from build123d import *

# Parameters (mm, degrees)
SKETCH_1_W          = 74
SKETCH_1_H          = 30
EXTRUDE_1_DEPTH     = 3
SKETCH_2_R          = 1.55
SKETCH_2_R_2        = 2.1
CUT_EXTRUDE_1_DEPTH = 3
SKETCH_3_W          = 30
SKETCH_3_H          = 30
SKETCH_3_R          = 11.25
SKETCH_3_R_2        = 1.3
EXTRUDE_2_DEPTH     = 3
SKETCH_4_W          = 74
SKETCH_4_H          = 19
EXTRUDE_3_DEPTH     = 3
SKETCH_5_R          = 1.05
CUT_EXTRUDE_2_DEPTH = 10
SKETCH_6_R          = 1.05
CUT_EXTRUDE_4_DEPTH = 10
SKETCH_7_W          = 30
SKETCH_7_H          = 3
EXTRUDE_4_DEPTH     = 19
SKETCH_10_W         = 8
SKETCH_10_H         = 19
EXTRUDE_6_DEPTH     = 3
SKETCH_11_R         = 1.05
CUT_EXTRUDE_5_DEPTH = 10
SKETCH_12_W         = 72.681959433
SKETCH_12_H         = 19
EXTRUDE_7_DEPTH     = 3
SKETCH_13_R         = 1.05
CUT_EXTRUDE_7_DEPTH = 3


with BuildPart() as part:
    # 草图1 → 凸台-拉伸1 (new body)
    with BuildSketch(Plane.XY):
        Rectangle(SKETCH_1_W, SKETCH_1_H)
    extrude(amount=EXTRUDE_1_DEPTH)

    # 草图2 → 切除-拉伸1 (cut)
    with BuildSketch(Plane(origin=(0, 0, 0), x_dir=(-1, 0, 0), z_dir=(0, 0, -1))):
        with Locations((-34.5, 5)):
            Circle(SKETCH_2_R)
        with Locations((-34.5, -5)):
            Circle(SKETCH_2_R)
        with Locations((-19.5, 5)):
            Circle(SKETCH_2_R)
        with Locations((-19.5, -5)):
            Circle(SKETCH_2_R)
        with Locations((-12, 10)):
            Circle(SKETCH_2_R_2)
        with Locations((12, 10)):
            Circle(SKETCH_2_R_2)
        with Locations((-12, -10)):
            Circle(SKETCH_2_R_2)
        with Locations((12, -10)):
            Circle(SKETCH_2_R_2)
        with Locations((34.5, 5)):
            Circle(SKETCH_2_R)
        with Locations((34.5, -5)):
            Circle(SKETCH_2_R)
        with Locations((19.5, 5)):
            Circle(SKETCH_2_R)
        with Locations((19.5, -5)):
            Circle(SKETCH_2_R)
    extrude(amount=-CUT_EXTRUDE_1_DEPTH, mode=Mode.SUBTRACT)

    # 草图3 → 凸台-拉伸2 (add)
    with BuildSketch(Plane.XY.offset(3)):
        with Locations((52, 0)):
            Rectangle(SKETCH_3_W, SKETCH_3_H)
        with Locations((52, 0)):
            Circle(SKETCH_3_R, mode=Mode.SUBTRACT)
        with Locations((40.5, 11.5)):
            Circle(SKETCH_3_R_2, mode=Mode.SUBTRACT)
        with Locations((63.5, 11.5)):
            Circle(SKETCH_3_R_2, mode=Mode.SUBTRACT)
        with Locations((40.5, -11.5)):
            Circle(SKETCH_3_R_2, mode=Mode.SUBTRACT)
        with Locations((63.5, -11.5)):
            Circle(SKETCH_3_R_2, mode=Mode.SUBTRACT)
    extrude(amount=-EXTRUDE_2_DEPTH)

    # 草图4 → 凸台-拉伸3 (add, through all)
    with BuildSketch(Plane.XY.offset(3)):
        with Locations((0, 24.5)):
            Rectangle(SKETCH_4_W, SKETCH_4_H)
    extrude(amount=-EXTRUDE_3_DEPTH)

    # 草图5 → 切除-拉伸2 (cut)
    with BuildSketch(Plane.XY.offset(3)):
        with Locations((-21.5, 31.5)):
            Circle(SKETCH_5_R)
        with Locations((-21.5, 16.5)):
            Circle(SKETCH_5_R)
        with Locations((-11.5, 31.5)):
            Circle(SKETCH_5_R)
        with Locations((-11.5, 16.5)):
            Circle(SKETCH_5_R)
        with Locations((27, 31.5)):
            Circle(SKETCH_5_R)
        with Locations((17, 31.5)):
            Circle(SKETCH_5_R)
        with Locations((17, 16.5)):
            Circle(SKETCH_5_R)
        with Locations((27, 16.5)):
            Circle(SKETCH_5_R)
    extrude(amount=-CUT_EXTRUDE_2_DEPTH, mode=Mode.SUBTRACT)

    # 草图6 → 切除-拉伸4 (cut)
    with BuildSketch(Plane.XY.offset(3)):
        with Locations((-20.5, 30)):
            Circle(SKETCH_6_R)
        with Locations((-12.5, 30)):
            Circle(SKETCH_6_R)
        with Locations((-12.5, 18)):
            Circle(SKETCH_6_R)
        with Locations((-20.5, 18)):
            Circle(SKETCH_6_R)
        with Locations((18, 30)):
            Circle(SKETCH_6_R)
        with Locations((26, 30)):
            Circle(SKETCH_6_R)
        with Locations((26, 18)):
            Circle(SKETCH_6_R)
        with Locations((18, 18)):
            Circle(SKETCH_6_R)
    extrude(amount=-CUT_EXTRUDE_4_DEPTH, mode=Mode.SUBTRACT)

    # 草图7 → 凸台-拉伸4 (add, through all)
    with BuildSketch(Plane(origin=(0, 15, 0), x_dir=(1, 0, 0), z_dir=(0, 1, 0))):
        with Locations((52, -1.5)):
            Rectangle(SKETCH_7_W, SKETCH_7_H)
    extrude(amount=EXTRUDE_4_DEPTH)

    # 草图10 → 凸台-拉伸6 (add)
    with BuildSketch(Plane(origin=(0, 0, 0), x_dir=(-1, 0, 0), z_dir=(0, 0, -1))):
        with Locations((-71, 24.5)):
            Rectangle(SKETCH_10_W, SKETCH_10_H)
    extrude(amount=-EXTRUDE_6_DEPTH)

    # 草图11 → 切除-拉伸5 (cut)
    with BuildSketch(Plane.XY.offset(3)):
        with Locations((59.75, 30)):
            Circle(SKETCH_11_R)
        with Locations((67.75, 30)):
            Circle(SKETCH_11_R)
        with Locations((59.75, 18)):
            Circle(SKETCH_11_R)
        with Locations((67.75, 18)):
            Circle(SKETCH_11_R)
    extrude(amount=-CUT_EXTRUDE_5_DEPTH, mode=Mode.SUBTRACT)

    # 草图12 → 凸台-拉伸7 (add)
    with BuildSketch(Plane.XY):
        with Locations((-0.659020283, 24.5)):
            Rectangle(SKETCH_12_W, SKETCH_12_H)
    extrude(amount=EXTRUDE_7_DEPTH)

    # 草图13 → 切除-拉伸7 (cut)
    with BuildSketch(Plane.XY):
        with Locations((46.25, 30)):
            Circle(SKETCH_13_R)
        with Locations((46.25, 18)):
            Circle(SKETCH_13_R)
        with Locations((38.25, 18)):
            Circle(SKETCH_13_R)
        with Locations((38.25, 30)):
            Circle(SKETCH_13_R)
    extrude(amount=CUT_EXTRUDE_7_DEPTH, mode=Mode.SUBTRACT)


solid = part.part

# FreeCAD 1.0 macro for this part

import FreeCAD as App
import Part
import Sketcher


def add_polygon(sketch, points):
    """Adds a closed chain of lines whose ends are joined by coincident constraints."""
    first, n = sketch.GeometryCount, len(points)
    for a, b in zip(points, points[1:] + points[:1]):
        sketch.addGeometry(Part.LineSegment(App.Vector(*a, 0), App.Vector(*b, 0)), False)
    for i in range(n):
        sketch.addConstraint(Sketcher.Constraint("Coincident", first + i, 2, first + (i + 1) % n, 1))

doc = App.newDocument("Part")
body = doc.addObject("PartDesign::Body", "Body")

# Sketch on XY plane
sketch1 = doc.addObject("Sketcher::SketchObject", "Sketch")
body.addObject(sketch1)
sketch1.AttachmentSupport = (doc.XY_Plane, [""])
sketch1.MapMode = "FlatFace"
add_polygon(sketch1, [(-37, 15), (-37, -15), (37, -15), (37, 15)])  # lines 0-3
sketch1.addConstraint(Sketcher.Constraint("Vertical", 0))
sketch1.addConstraint(Sketcher.Constraint("Horizontal", 1))
sketch1.addConstraint(Sketcher.Constraint("Vertical", 2))
sketch1.addConstraint(Sketcher.Constraint("Horizontal", 3))
sketch1.addConstraint(Sketcher.Constraint("Symmetric", 0, 2, 2, 2, -1, 1))
sketch1.addConstraint(Sketcher.Constraint("DistanceX", 1, 1, 1, 2, 74.0))
sketch1.addConstraint(Sketcher.Constraint("DistanceY", 0, 2, 0, 1, 30.0))
pad1 = doc.addObject("PartDesign::Pad", "Pad")
body.addObject(pad1)
pad1.Profile = sketch1
pad1.Length = 3

# Sketch on XY plane
sketch2 = doc.addObject("Sketcher::SketchObject", "Sketch001")
body.addObject(sketch2)
sketch2.AttachmentSupport = (doc.XY_Plane, [""])
sketch2.MapMode = "FlatFace"
sketch2.addGeometry(Part.Circle(App.Vector(34.5, 5, 0), App.Vector(0, 0, 1), 1.6), False)
sketch2.addGeometry(Part.Circle(App.Vector(34.5, -5, 0), App.Vector(0, 0, 1), 1.6), False)
sketch2.addGeometry(Part.Circle(App.Vector(19.5, 5, 0), App.Vector(0, 0, 1), 1.6), False)
sketch2.addGeometry(Part.Circle(App.Vector(19.5, -5, 0), App.Vector(0, 0, 1), 1.6), False)
sketch2.addGeometry(Part.Circle(App.Vector(12, 10, 0), App.Vector(0, 0, 1), 2.1), False)
sketch2.addGeometry(Part.Circle(App.Vector(-12, 10, 0), App.Vector(0, 0, 1), 2.1), False)
sketch2.addGeometry(Part.Circle(App.Vector(12, -10, 0), App.Vector(0, 0, 1), 2.1), False)
sketch2.addGeometry(Part.Circle(App.Vector(-12, -10, 0), App.Vector(0, 0, 1), 2.1), False)
sketch2.addGeometry(Part.Circle(App.Vector(-34.5, 5, 0), App.Vector(0, 0, 1), 1.6), False)
sketch2.addGeometry(Part.Circle(App.Vector(-34.5, -5, 0), App.Vector(0, 0, 1), 1.6), False)
sketch2.addGeometry(Part.Circle(App.Vector(-19.5, 5, 0), App.Vector(0, 0, 1), 1.6), False)
sketch2.addGeometry(Part.Circle(App.Vector(-19.5, -5, 0), App.Vector(0, 0, 1), 1.6), False)
sketch2.addConstraint(Sketcher.Constraint("Equal", 0, 1))
sketch2.addConstraint(Sketcher.Constraint("Equal", 1, 2))
sketch2.addConstraint(Sketcher.Constraint("Equal", 2, 3))
sketch2.addConstraint(Sketcher.Constraint("Equal", 4, 5))
sketch2.addConstraint(Sketcher.Constraint("Equal", 5, 6))
sketch2.addConstraint(Sketcher.Constraint("Equal", 6, 7))
sketch2.addConstraint(Sketcher.Constraint("Equal", 3, 8))
sketch2.addConstraint(Sketcher.Constraint("Equal", 8, 9))
sketch2.addConstraint(Sketcher.Constraint("Equal", 9, 10))
sketch2.addConstraint(Sketcher.Constraint("Equal", 10, 11))
sketch2.addConstraint(Sketcher.Constraint("Symmetric", 5, 3, 6, 3, -1, 1))
sketch2.addConstraint(Sketcher.Constraint("Symmetric", 4, 3, 7, 3, -1, 1))
sketch2.addConstraint(Sketcher.Constraint("Symmetric", 1, 3, 8, 3, -1, 1))
sketch2.addConstraint(Sketcher.Constraint("Symmetric", 0, 3, 9, 3, -1, 1))
sketch2.addConstraint(Sketcher.Constraint("Symmetric", 3, 3, 10, 3, -1, 1))
sketch2.addConstraint(Sketcher.Constraint("Symmetric", 2, 3, 11, 3, -1, 1))
sketch2.addConstraint(Sketcher.Constraint("Symmetric", 4, 3, 5, 3, -2))
sketch2.addConstraint(Sketcher.Constraint("Symmetric", 0, 3, 8, 3, -2))
sketch2.addConstraint(Sketcher.Constraint("Symmetric", 2, 3, 10, 3, -2))
sketch2.addConstraint(Sketcher.Constraint("Horizontal", 0, 3, 2, 3))
sketch2.addConstraint(Sketcher.Constraint("Diameter", 0, 3.1))
sketch2.addConstraint(Sketcher.Constraint("Diameter", 4, 4.2))
sketch2.addConstraint(Sketcher.Constraint("DistanceY", -1, 1, 0, 3, 5.0))
sketch2.addConstraint(Sketcher.Constraint("DistanceX", -1, 1, 4, 3, 12.0))
sketch2.addConstraint(Sketcher.Constraint("DistanceY", -1, 1, 4, 3, 10.0))
sketch2.addConstraint(Sketcher.Constraint("DistanceX", 2, 3, 0, 3, 15.0))
sketch2.addConstraint(Sketcher.Constraint("DistanceX", 8, 3, 2, 3, 54.0))
pocket1 = doc.addObject("PartDesign::Pocket", "Pocket")
body.addObject(pocket1)
pocket1.Profile = sketch2
pocket1.Length = 3
pocket1.Reversed = True

# Sketch on XY plane
sketch3 = doc.addObject("Sketcher::SketchObject", "Sketch002")
body.addObject(sketch3)
sketch3.AttachmentSupport = (doc.XY_Plane, [""])
sketch3.MapMode = "FlatFace"
sketch3.AttachmentOffset = App.Placement(App.Vector(0, 0, 3), App.Rotation())
add_polygon(sketch3, [(37, 15), (37, -15), (67, -15), (67, 15)])  # lines 0-3
sketch3.addGeometry(Part.Circle(App.Vector(40.5, -11.5, 0), App.Vector(0, 0, 1), 1.3), False)  # 4
sketch3.addGeometry(Part.Circle(App.Vector(63.5, -11.5, 0), App.Vector(0, 0, 1), 1.3), False)  # 5
sketch3.addGeometry(Part.Circle(App.Vector(40.5, 11.5, 0), App.Vector(0, 0, 1), 1.3), False)  # 6
sketch3.addGeometry(Part.Circle(App.Vector(52, 0, 0), App.Vector(0, 0, 1), 11.2), False)  # 7
sketch3.addGeometry(Part.Circle(App.Vector(63.5, 11.5, 0), App.Vector(0, 0, 1), 1.3), False)  # 8
sketch3.addConstraint(Sketcher.Constraint("Vertical", 0))
sketch3.addConstraint(Sketcher.Constraint("Horizontal", 1))
sketch3.addConstraint(Sketcher.Constraint("Vertical", 2))
sketch3.addConstraint(Sketcher.Constraint("Horizontal", 3))
sketch3.addConstraint(Sketcher.Constraint("Equal", 4, 5))
sketch3.addConstraint(Sketcher.Constraint("Equal", 5, 6))
sketch3.addConstraint(Sketcher.Constraint("Equal", 6, 8))
sketch3.addConstraint(Sketcher.Constraint("Symmetric", 4, 3, 6, 3, -1))
sketch3.addConstraint(Sketcher.Constraint("Symmetric", 5, 3, 8, 3, -1))
sketch3.addConstraint(Sketcher.Constraint("PointOnObject", 7, 3, -1))
sketch3.addConstraint(Sketcher.Constraint("Horizontal", 4, 3, 5, 3))
sketch3.addConstraint(Sketcher.Constraint("Equal", 3, 0))
sketch3.addConstraint(Sketcher.Constraint("Diameter", 4, 2.6))
sketch3.addConstraint(Sketcher.Constraint("Diameter", 7, 22.5))
sketch3.addConstraint(Sketcher.Constraint("DistanceX", 1, 1, 1, 2, 30.0))
sketch3.addConstraint(Sketcher.Constraint("DistanceX", -1, 1, 7, 3, 52.0))
sketch3.addConstraint(Sketcher.Constraint("DistanceX", -1, 1, 0, 2, 37.0))
sketch3.addConstraint(Sketcher.Constraint("DistanceY", 0, 2, -1, 1, 15.0))
sketch3.addConstraint(Sketcher.Constraint("DistanceX", 4, 3, 5, 3, 23.0))
sketch3.addConstraint(Sketcher.Constraint("DistanceY", 4, 3, 6, 3, 23.0))
sketch3.addConstraint(Sketcher.Constraint("DistanceX", -1, 1, 4, 3, 40.5))
pad2 = doc.addObject("PartDesign::Pad", "Pad001")
body.addObject(pad2)
pad2.Profile = sketch3
pad2.Length = 3
pad2.Reversed = True

# Sketch on XY plane
sketch4 = doc.addObject("Sketcher::SketchObject", "Sketch003")
body.addObject(sketch4)
sketch4.AttachmentSupport = (doc.XY_Plane, [""])
sketch4.MapMode = "FlatFace"
sketch4.AttachmentOffset = App.Placement(App.Vector(0, 0, 3), App.Rotation())
add_polygon(sketch4, [(-37, 34), (-37, 15), (37, 15), (37, 34)])  # lines 0-3
sketch4.addConstraint(Sketcher.Constraint("Vertical", 0))
sketch4.addConstraint(Sketcher.Constraint("Horizontal", 1))
sketch4.addConstraint(Sketcher.Constraint("Vertical", 2))
sketch4.addConstraint(Sketcher.Constraint("Horizontal", 3))
sketch4.addConstraint(Sketcher.Constraint("DistanceX", 1, 1, 1, 2, 74.0))
sketch4.addConstraint(Sketcher.Constraint("DistanceY", 0, 2, 0, 1, 19.0))
sketch4.addConstraint(Sketcher.Constraint("DistanceX", 0, 2, -1, 1, 37.0))
sketch4.addConstraint(Sketcher.Constraint("DistanceY", -1, 1, 0, 2, 15.0))
pad3 = doc.addObject("PartDesign::Pad", "Pad002")
body.addObject(pad3)
pad3.Profile = sketch4
pad3.Length = 3
pad3.Reversed = True

# Sketch on XY plane
sketch5 = doc.addObject("Sketcher::SketchObject", "Sketch004")
body.addObject(sketch5)
sketch5.AttachmentSupport = (doc.XY_Plane, [""])
sketch5.MapMode = "FlatFace"
sketch5.AttachmentOffset = App.Placement(App.Vector(0, 0, 3), App.Rotation())
sketch5.addGeometry(Part.Circle(App.Vector(-21.5, 31.5, 0), App.Vector(0, 0, 1), 1.1), False)
sketch5.addGeometry(Part.Circle(App.Vector(-21.5, 16.5, 0), App.Vector(0, 0, 1), 1.1), False)
sketch5.addGeometry(Part.Circle(App.Vector(-11.5, 31.5, 0), App.Vector(0, 0, 1), 1.1), False)
sketch5.addGeometry(Part.Circle(App.Vector(-11.5, 16.5, 0), App.Vector(0, 0, 1), 1.1), False)
sketch5.addGeometry(Part.Circle(App.Vector(27, 31.5, 0), App.Vector(0, 0, 1), 1.1), False)
sketch5.addGeometry(Part.Circle(App.Vector(17, 31.5, 0), App.Vector(0, 0, 1), 1.1), False)
sketch5.addGeometry(Part.Circle(App.Vector(17, 16.5, 0), App.Vector(0, 0, 1), 1.1), False)
sketch5.addGeometry(Part.Circle(App.Vector(27, 16.5, 0), App.Vector(0, 0, 1), 1.1), False)
sketch5.addConstraint(Sketcher.Constraint("Equal", 0, 1))
sketch5.addConstraint(Sketcher.Constraint("Equal", 1, 2))
sketch5.addConstraint(Sketcher.Constraint("Equal", 2, 3))
sketch5.addConstraint(Sketcher.Constraint("Equal", 3, 4))
sketch5.addConstraint(Sketcher.Constraint("Equal", 4, 5))
sketch5.addConstraint(Sketcher.Constraint("Equal", 5, 6))
sketch5.addConstraint(Sketcher.Constraint("Equal", 6, 7))
sketch5.addConstraint(Sketcher.Constraint("Horizontal", 0, 3, 2, 3))
sketch5.addConstraint(Sketcher.Constraint("Horizontal", 1, 3, 3, 3))
sketch5.addConstraint(Sketcher.Constraint("Horizontal", 2, 3, 4, 3))
sketch5.addConstraint(Sketcher.Constraint("Horizontal", 4, 3, 5, 3))
sketch5.addConstraint(Sketcher.Constraint("Horizontal", 3, 3, 6, 3))
sketch5.addConstraint(Sketcher.Constraint("Horizontal", 6, 3, 7, 3))
sketch5.addConstraint(Sketcher.Constraint("Vertical", 0, 3, 1, 3))
sketch5.addConstraint(Sketcher.Constraint("Vertical", 2, 3, 3, 3))
sketch5.addConstraint(Sketcher.Constraint("Vertical", 5, 3, 6, 3))
sketch5.addConstraint(Sketcher.Constraint("Vertical", 4, 3, 7, 3))
sketch5.addConstraint(Sketcher.Constraint("Diameter", 0, 2.1))
sketch5.addConstraint(Sketcher.Constraint("DistanceX", -1, 1, 4, 3, 27.0))
sketch5.addConstraint(Sketcher.Constraint("DistanceX", -1, 1, 5, 3, 17.0))
sketch5.addConstraint(Sketcher.Constraint("DistanceY", 1, 3, 0, 3, 15.0))
sketch5.addConstraint(Sketcher.Constraint("DistanceX", 0, 3, 2, 3, 10.0))
sketch5.addConstraint(Sketcher.Constraint("DistanceX", 0, 3, -1, 1, 21.5))
sketch5.addConstraint(Sketcher.Constraint("DistanceY", -1, 1, 0, 3, 31.5))
pocket2 = doc.addObject("PartDesign::Pocket", "Pocket001")
body.addObject(pocket2)
pocket2.Profile = sketch5
pocket2.Length = 10

# Sketch on XY plane
sketch6 = doc.addObject("Sketcher::SketchObject", "Sketch005")
body.addObject(sketch6)
sketch6.AttachmentSupport = (doc.XY_Plane, [""])
sketch6.MapMode = "FlatFace"
sketch6.AttachmentOffset = App.Placement(App.Vector(0, 0, 3), App.Rotation())
sketch6.addGeometry(Part.Circle(App.Vector(-20.5, 30, 0), App.Vector(0, 0, 1), 1.1), False)
sketch6.addGeometry(Part.Circle(App.Vector(-12.5, 30, 0), App.Vector(0, 0, 1), 1.1), False)
sketch6.addGeometry(Part.Circle(App.Vector(-12.5, 18, 0), App.Vector(0, 0, 1), 1.1), False)
sketch6.addGeometry(Part.Circle(App.Vector(-20.5, 18, 0), App.Vector(0, 0, 1), 1.1), False)
sketch6.addGeometry(Part.Circle(App.Vector(18, 30, 0), App.Vector(0, 0, 1), 1.1), False)
sketch6.addGeometry(Part.Circle(App.Vector(26, 30, 0), App.Vector(0, 0, 1), 1.1), False)
sketch6.addGeometry(Part.Circle(App.Vector(26, 18, 0), App.Vector(0, 0, 1), 1.1), False)
sketch6.addGeometry(Part.Circle(App.Vector(18, 18, 0), App.Vector(0, 0, 1), 1.1), False)
sketch6.addConstraint(Sketcher.Constraint("Equal", 0, 1))
sketch6.addConstraint(Sketcher.Constraint("Equal", 1, 2))
sketch6.addConstraint(Sketcher.Constraint("Equal", 2, 3))
sketch6.addConstraint(Sketcher.Constraint("Equal", 3, 4))
sketch6.addConstraint(Sketcher.Constraint("Equal", 4, 5))
sketch6.addConstraint(Sketcher.Constraint("Equal", 5, 6))
sketch6.addConstraint(Sketcher.Constraint("Equal", 6, 7))
sketch6.addConstraint(Sketcher.Constraint("Horizontal", 0, 3, 1, 3))
sketch6.addConstraint(Sketcher.Constraint("Horizontal", 2, 3, 3, 3))
sketch6.addConstraint(Sketcher.Constraint("Horizontal", 1, 3, 4, 3))
sketch6.addConstraint(Sketcher.Constraint("Horizontal", 4, 3, 5, 3))
sketch6.addConstraint(Sketcher.Constraint("Horizontal", 3, 3, 6, 3))
sketch6.addConstraint(Sketcher.Constraint("Horizontal", 6, 3, 7, 3))
sketch6.addConstraint(Sketcher.Constraint("Vertical", 1, 3, 2, 3))
sketch6.addConstraint(Sketcher.Constraint("Vertical", 0, 3, 3, 3))
sketch6.addConstraint(Sketcher.Constraint("Vertical", 5, 3, 6, 3))
sketch6.addConstraint(Sketcher.Constraint("Vertical", 4, 3, 7, 3))
sketch6.addConstraint(Sketcher.Constraint("Diameter", 0, 2.1))
sketch6.addConstraint(Sketcher.Constraint("DistanceY", -1, 1, 0, 3, 30.0))
sketch6.addConstraint(Sketcher.Constraint("DistanceY", -1, 1, 2, 3, 18.0))
sketch6.addConstraint(Sketcher.Constraint("DistanceX", -1, 1, 4, 3, 18.0))
sketch6.addConstraint(Sketcher.Constraint("DistanceX", -1, 1, 5, 3, 26.0))
sketch6.addConstraint(Sketcher.Constraint("DistanceX", 0, 3, 1, 3, 8.0))
sketch6.addConstraint(Sketcher.Constraint("DistanceX", 0, 3, -1, 1, 20.5))
pocket3 = doc.addObject("PartDesign::Pocket", "Pocket002")
body.addObject(pocket3)
pocket3.Profile = sketch6
pocket3.Length = 10

# Sketch on XZ plane
sketch7 = doc.addObject("Sketcher::SketchObject", "Sketch006")
body.addObject(sketch7)
sketch7.AttachmentSupport = (doc.XZ_Plane, [""])
sketch7.MapMode = "FlatFace"
sketch7.AttachmentOffset = App.Placement(App.Vector(0, 0, -15), App.Rotation())
add_polygon(sketch7, [(37, 0), (37, 3), (67, 3), (67, 0)])  # lines 0-3
sketch7.addConstraint(Sketcher.Constraint("Vertical", 0))
sketch7.addConstraint(Sketcher.Constraint("Horizontal", 1))
sketch7.addConstraint(Sketcher.Constraint("Vertical", 2))
sketch7.addConstraint(Sketcher.Constraint("Horizontal", 3))
sketch7.addConstraint(Sketcher.Constraint("PointOnObject", 2, 2, -1))
sketch7.addConstraint(Sketcher.Constraint("DistanceX", 1, 1, 1, 2, 30.0))
sketch7.addConstraint(Sketcher.Constraint("DistanceY", 0, 1, 0, 2, 3.0))
sketch7.addConstraint(Sketcher.Constraint("DistanceX", -1, 1, 0, 2, 37.0))
pad4 = doc.addObject("PartDesign::Pad", "Pad003")
body.addObject(pad4)
pad4.Profile = sketch7
pad4.Length = 19
pad4.Reversed = True

# Sketch on XY plane
sketch8 = doc.addObject("Sketcher::SketchObject", "Sketch007")
body.addObject(sketch8)
sketch8.AttachmentSupport = (doc.XY_Plane, [""])
sketch8.MapMode = "FlatFace"
add_polygon(sketch8, [(75, 34), (75, 15), (67, 15), (67, 34)])  # lines 0-3
sketch8.addConstraint(Sketcher.Constraint("Vertical", 0))
sketch8.addConstraint(Sketcher.Constraint("Horizontal", 1))
sketch8.addConstraint(Sketcher.Constraint("Vertical", 2))
sketch8.addConstraint(Sketcher.Constraint("Horizontal", 3))
sketch8.addConstraint(Sketcher.Constraint("DistanceX", 1, 2, 1, 1, 8.0))
sketch8.addConstraint(Sketcher.Constraint("DistanceY", 0, 2, 0, 1, 19.0))
sketch8.addConstraint(Sketcher.Constraint("DistanceX", -1, 1, 0, 2, 75.0))
sketch8.addConstraint(Sketcher.Constraint("DistanceY", -1, 1, 0, 2, 15.0))
pad5 = doc.addObject("PartDesign::Pad", "Pad004")
body.addObject(pad5)
pad5.Profile = sketch8
pad5.Length = 3

# Sketch on XY plane
sketch9 = doc.addObject("Sketcher::SketchObject", "Sketch008")
body.addObject(sketch9)
sketch9.AttachmentSupport = (doc.XY_Plane, [""])
sketch9.MapMode = "FlatFace"
sketch9.AttachmentOffset = App.Placement(App.Vector(0, 0, 3), App.Rotation())
sketch9.addGeometry(Part.Circle(App.Vector(59.8, 30, 0), App.Vector(0, 0, 1), 1.1), False)
sketch9.addGeometry(Part.Circle(App.Vector(67.8, 30, 0), App.Vector(0, 0, 1), 1.1), False)
sketch9.addGeometry(Part.Circle(App.Vector(59.8, 18, 0), App.Vector(0, 0, 1), 1.1), False)
sketch9.addGeometry(Part.Circle(App.Vector(67.8, 18, 0), App.Vector(0, 0, 1), 1.1), False)
sketch9.addConstraint(Sketcher.Constraint("Equal", 0, 1))
sketch9.addConstraint(Sketcher.Constraint("Equal", 1, 2))
sketch9.addConstraint(Sketcher.Constraint("Equal", 2, 3))
sketch9.addConstraint(Sketcher.Constraint("Horizontal", 0, 3, 1, 3))
sketch9.addConstraint(Sketcher.Constraint("Horizontal", 2, 3, 3, 3))
sketch9.addConstraint(Sketcher.Constraint("Vertical", 0, 3, 2, 3))
sketch9.addConstraint(Sketcher.Constraint("Vertical", 1, 3, 3, 3))
sketch9.addConstraint(Sketcher.Constraint("Diameter", 0, 2.1))
sketch9.addConstraint(Sketcher.Constraint("DistanceY", -1, 1, 0, 3, 30.0))
sketch9.addConstraint(Sketcher.Constraint("DistanceY", -1, 1, 2, 3, 18.0))
sketch9.addConstraint(Sketcher.Constraint("DistanceX", 0, 3, 1, 3, 8.0))
sketch9.addConstraint(Sketcher.Constraint("DistanceX", -1, 1, 0, 3, 59.75))
pocket4 = doc.addObject("PartDesign::Pocket", "Pocket003")
body.addObject(pocket4)
pocket4.Profile = sketch9
pocket4.Length = 10

# Sketch on XY plane
sketch10 = doc.addObject("Sketcher::SketchObject", "Sketch009")
body.addObject(sketch10)
sketch10.AttachmentSupport = (doc.XY_Plane, [""])
sketch10.MapMode = "FlatFace"
add_polygon(sketch10, [(-37, 34), (-37, 15), (36, 15), (36, 34)])  # lines 0-3
sketch10.addConstraint(Sketcher.Constraint("Vertical", 0))
sketch10.addConstraint(Sketcher.Constraint("Horizontal", 1))
sketch10.addConstraint(Sketcher.Constraint("Vertical", 2))
sketch10.addConstraint(Sketcher.Constraint("Horizontal", 3))
sketch10.addConstraint(Sketcher.Constraint("DistanceY", 0, 2, 0, 1, 19.0))
sketch10.addConstraint(Sketcher.Constraint("DistanceX", 0, 2, -1, 1, 37.0))
sketch10.addConstraint(Sketcher.Constraint("DistanceY", -1, 1, 0, 2, 15.0))
sketch10.addConstraint(Sketcher.Constraint("DistanceX", 1, 1, 1, 2, 72.681959))
pad6 = doc.addObject("PartDesign::Pad", "Pad005")
body.addObject(pad6)
pad6.Profile = sketch10
pad6.Length = 3

# Sketch on XY plane
sketch11 = doc.addObject("Sketcher::SketchObject", "Sketch010")
body.addObject(sketch11)
sketch11.AttachmentSupport = (doc.XY_Plane, [""])
sketch11.MapMode = "FlatFace"
sketch11.addGeometry(Part.Circle(App.Vector(46.2, 30, 0), App.Vector(0, 0, 1), 1.1), False)
sketch11.addGeometry(Part.Circle(App.Vector(46.2, 18, 0), App.Vector(0, 0, 1), 1.1), False)
sketch11.addGeometry(Part.Circle(App.Vector(38.2, 18, 0), App.Vector(0, 0, 1), 1.1), False)
sketch11.addGeometry(Part.Circle(App.Vector(38.2, 30, 0), App.Vector(0, 0, 1), 1.1), False)
sketch11.addConstraint(Sketcher.Constraint("Equal", 0, 1))
sketch11.addConstraint(Sketcher.Constraint("Equal", 1, 2))
sketch11.addConstraint(Sketcher.Constraint("Equal", 2, 3))
sketch11.addConstraint(Sketcher.Constraint("Horizontal", 1, 3, 2, 3))
sketch11.addConstraint(Sketcher.Constraint("Horizontal", 0, 3, 3, 3))
sketch11.addConstraint(Sketcher.Constraint("Vertical", 0, 3, 1, 3))
sketch11.addConstraint(Sketcher.Constraint("Vertical", 2, 3, 3, 3))
sketch11.addConstraint(Sketcher.Constraint("Diameter", 0, 2.1))
sketch11.addConstraint(Sketcher.Constraint("DistanceY", -1, 1, 0, 3, 30.0))
sketch11.addConstraint(Sketcher.Constraint("DistanceY", -1, 1, 1, 3, 18.0))
sketch11.addConstraint(Sketcher.Constraint("DistanceX", 2, 3, 1, 3, 8.0))
sketch11.addConstraint(Sketcher.Constraint("DistanceX", -1, 1, 0, 3, 46.25))
pocket5 = doc.addObject("PartDesign::Pocket", "Pocket004")
body.addObject(pocket5)
pocket5.Profile = sketch11
pocket5.Length = 3
pocket5.Reversed = True

doc.recompute()
